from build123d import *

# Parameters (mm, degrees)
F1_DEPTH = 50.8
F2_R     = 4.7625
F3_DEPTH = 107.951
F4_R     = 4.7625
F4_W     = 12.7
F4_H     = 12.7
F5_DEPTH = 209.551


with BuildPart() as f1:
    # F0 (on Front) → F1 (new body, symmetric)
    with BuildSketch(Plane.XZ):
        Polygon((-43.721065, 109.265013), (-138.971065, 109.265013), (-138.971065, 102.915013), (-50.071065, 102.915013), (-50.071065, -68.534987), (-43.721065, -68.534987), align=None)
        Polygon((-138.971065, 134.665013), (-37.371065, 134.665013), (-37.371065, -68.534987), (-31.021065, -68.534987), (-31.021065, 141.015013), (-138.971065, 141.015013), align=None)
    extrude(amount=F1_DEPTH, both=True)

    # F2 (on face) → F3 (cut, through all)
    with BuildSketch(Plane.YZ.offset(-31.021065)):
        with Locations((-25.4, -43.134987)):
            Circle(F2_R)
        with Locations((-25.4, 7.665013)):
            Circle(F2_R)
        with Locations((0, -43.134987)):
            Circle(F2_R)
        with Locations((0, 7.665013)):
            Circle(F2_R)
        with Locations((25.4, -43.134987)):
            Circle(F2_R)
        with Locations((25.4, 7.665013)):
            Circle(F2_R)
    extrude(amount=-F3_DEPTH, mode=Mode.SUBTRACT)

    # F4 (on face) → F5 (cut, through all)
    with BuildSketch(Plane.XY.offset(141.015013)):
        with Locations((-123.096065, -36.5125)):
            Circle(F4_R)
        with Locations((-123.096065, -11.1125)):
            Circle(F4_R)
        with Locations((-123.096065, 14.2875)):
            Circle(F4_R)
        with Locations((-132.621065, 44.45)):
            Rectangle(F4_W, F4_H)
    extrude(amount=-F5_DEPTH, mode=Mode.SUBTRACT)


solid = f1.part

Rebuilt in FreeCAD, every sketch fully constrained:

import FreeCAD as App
import Part
import Sketcher
from FreeCAD import Vector
Q = App.Units.Quantity


def add_polygon(sketch, points):
    """Adds a closed chain of lines whose ends are joined by coincident constraints."""
    first, n = sketch.GeometryCount, len(points)
    for a, b in zip(points, points[1:] + points[:1]):
        sketch.addGeometry(Part.LineSegment(App.Vector(*a, 0), App.Vector(*b, 0)), False)
    for i in range(n):
        sketch.addConstraint(Sketcher.Constraint("Coincident", first + i, 2, first + (i + 1) % n, 1))

doc = App.newDocument("Part")
params = doc.addObject("Spreadsheet::Sheet", "Params")
for row, (alias, value) in enumerate([
    ("sketch1_width", "4 in"),
    ("sketch1_height", "7 in"),
    ("sketch1_height2", "8 in"),
    ("sketch1_width2", "3.5 in"),
    ("sketch1_width3", "3.75 in"),
    ("pad1_length", "4 in"),
    ("sketch2_diameter", "0.375 in"),
    ("sketch3_diameter", "0.375 in"),
    ("sketch3_width", "0.5 in"),
], start=1):
    params.set(f"A{row}", alias)
    params.set(f"B{row}", "=" + value)
    params.setAlias(f"B{row}", alias)

body = doc.addObject("PartDesign::Body", "Body")
body.AllowCompound = True

# Sketch on XZ plane
sketch1 = doc.addObject("Sketcher::SketchObject", "Sketch")
body.addObject(sketch1)
sketch1.AttachmentSupport = (doc.XZ_Plane, [""])
sketch1.MapMode = "FlatFace"
add_polygon(sketch1, [(-43.721065, 109.265013), (-138.971065, 109.265013), (-138.971065, 102.915013), (-50.071065, 102.915013), (-50.071065, -68.534987), (-43.721065, -68.534987)])  # lines 0-5
add_polygon(sketch1, [(-138.971065, 134.665013), (-37.371065, 134.665013), (-37.371065, -68.534987), (-31.021065, -68.534987), (-31.021065, 141.015013), (-138.971065, 141.015013)])  # lines 6-11
sketch1.addConstraint([
    Sketcher.Constraint("Horizontal", 0),
    Sketcher.Constraint("Vertical", 1),
    Sketcher.Constraint("Horizontal", 2),
    Sketcher.Constraint("Vertical", 3),
    Sketcher.Constraint("Horizontal", 4),
    Sketcher.Constraint("Vertical", 5),
    Sketcher.Constraint("Horizontal", 6),
    Sketcher.Constraint("Vertical", 7),
    Sketcher.Constraint("Horizontal", 8),
    Sketcher.Constraint("Vertical", 9),
    Sketcher.Constraint("Horizontal", 10),
    Sketcher.Constraint("Vertical", 11),
    Sketcher.Constraint("Horizontal", 4, 2, 7, 2),
    Sketcher.Constraint("Vertical", 1, 2, 10, 2),
    Sketcher.Constraint("Equal", 4, 8),
    Sketcher.Constraint("Equal", 8, 1),
    Sketcher.Constraint("Equal", 1, 11),
    Sketcher.Constraint("DistanceX", 6, 1, 6, 2, Q("4 in")),
    Sketcher.Constraint("DistanceY", 5, 1, 5, 2, Q("7 in")),
    Sketcher.Constraint("DistanceY", 7, 2, 7, 1, Q("8 in")),
    Sketcher.Constraint("DistanceX", 2, 1, 2, 2, Q("3.5 in")),
    Sketcher.Constraint("DistanceX", 0, 2, 0, 1, Q("3.75 in")),
    Sketcher.Constraint("DistanceX", 0, 2, -1, 1, 138.971065),
    Sketcher.Constraint("DistanceY", -1, 1, 0, 2, 109.265013),
])
sketch1.setExpression("Constraints[29]", "Params.sketch1_width")
sketch1.setExpression("Constraints[30]", "Params.sketch1_height")
sketch1.setExpression("Constraints[31]", "Params.sketch1_height2")
sketch1.setExpression("Constraints[32]", "Params.sketch1_width2")
sketch1.setExpression("Constraints[33]", "Params.sketch1_width3")
pad1 = doc.addObject("PartDesign::Pad", "Pad")
body.addObject(pad1)
pad1.Profile = sketch1
pad1.setExpression("Length", "Params.pad1_length")
pad1.Midplane = True

# Sketch on YZ plane
sketch2 = doc.addObject("Sketcher::SketchObject", "Sketch001")
body.addObject(sketch2)
sketch2.AttachmentSupport = (doc.YZ_Plane, [""])
sketch2.MapMode = "FlatFace"
sketch2.AttachmentOffset = App.Placement(Vector(0, 0, -31.021065), App.Rotation())
sketch2.addGeometry([
    Part.Circle(Vector(-25.4, -43.134987, 0), Vector(0, 0, 1), 4.7625),  # 0
    Part.Circle(Vector(-25.4, 7.665013, 0), Vector(0, 0, 1), 4.7625),  # 1
    Part.Circle(Vector(0, -43.134987, 0), Vector(0, 0, 1), 4.7625),  # 2
    Part.Circle(Vector(0, 7.665013, 0), Vector(0, 0, 1), 4.7625),  # 3
    Part.Circle(Vector(25.4, -43.134987, 0), Vector(0, 0, 1), 4.7625),  # 4
    Part.Circle(Vector(25.4, 7.665013, 0), Vector(0, 0, 1), 4.7625),  # 5
], False)
sketch2.addConstraint([
    Sketcher.Constraint("Equal", 0, 1),
    Sketcher.Constraint("Equal", 1, 2),
    Sketcher.Constraint("Equal", 2, 3),
    Sketcher.Constraint("Equal", 3, 4),
    Sketcher.Constraint("Equal", 4, 5),
    Sketcher.Constraint("Symmetric", 0, 3, 4, 3, -2),
    Sketcher.Constraint("Symmetric", 1, 3, 5, 3, -2),
    Sketcher.Constraint("PointOnObject", 2, 3, -2),
    Sketcher.Constraint("PointOnObject", 3, 3, -2),
    Sketcher.Constraint("Horizontal", 0, 3, 2, 3),
    Sketcher.Constraint("Horizontal", 1, 3, 3, 3),
    Sketcher.Constraint("Vertical", 0, 3, 1, 3),
    Sketcher.Constraint("Diameter", 0, Q("0.375 in")),
    Sketcher.Constraint("DistanceX", 0, 3, -1, 1, Q("1 in")),
    Sketcher.Constraint("DistanceY", 0, 3, 1, 3, Q("2 in")),
    Sketcher.Constraint("DistanceY", 0, 3, -1, 1, 43.134987),
])
sketch2.setExpression("Constraints[12]", "Params.sketch2_diameter")
pocket1 = doc.addObject("PartDesign::Pocket", "Pocket")
body.addObject(pocket1)
pocket1.Profile = sketch2
pocket1.Type = "ThroughAll"

# Sketch on XY plane
sketch3 = doc.addObject("Sketcher::SketchObject", "Sketch002")
body.addObject(sketch3)
sketch3.AttachmentSupport = (doc.XY_Plane, [""])
sketch3.MapMode = "FlatFace"
sketch3.AttachmentOffset = App.Placement(Vector(0, 0, 141.015013), App.Rotation())
sketch3.addGeometry(Part.Circle(Vector(-123.096065, -36.5125, 0), Vector(0, 0, 1), 4.7625), False)  # 0
sketch3.addGeometry(Part.Circle(Vector(-123.096065, -11.1125, 0), Vector(0, 0, 1), 4.7625), False)  # 1
sketch3.addGeometry(Part.Circle(Vector(-123.096065, 14.2875, 0), Vector(0, 0, 1), 4.7625), False)  # 2
add_polygon(sketch3, [(-138.971065, 50.8), (-138.971065, 38.1), (-126.271065, 38.1), (-126.271065, 50.8)])  # lines 3-6
sketch3.addConstraint([
    Sketcher.Constraint("Vertical", 3),
    Sketcher.Constraint("Horizontal", 4),
    Sketcher.Constraint("Vertical", 5),
    Sketcher.Constraint("Horizontal", 6),
    Sketcher.Constraint("Equal", 0, 1),
    Sketcher.Constraint("Equal", 1, 2),
    Sketcher.Constraint("Vertical", 0, 3, 1, 3),
    Sketcher.Constraint("Vertical", 1, 3, 2, 3),
    Sketcher.Constraint("Equal", 6, 3),
    Sketcher.Constraint("Diameter", 0, Q("0.375 in")),
    Sketcher.Constraint("DistanceX", 4, 1, 4, 2, Q("0.5 in")),
    Sketcher.Constraint("DistanceY", -1, 1, 5, 2, Q("2 in")),
    Sketcher.Constraint("DistanceY", 0, 3, 1, 3, Q("1 in")),
    Sketcher.Constraint("DistanceY", 1, 3, 2, 3, Q("1 in")),
    Sketcher.Constraint("DistanceY", 0, 3, -1, 1, Q("1.4375 in")),
    Sketcher.Constraint("DistanceX", 3, 2, 2, 3, Q("0.625 in")),
    Sketcher.Constraint("DistanceX", 0, 3, -1, 1, 123.096065),
])
sketch3.setExpression("Constraints[13]", "Params.sketch3_diameter")
sketch3.setExpression("Constraints[14]", "Params.sketch3_width")
pocket2 = doc.addObject("PartDesign::Pocket", "Pocket001")
body.addObject(pocket2)
pocket2.Profile = sketch3
pocket2.Type = "ThroughAll"

doc.recompute()
